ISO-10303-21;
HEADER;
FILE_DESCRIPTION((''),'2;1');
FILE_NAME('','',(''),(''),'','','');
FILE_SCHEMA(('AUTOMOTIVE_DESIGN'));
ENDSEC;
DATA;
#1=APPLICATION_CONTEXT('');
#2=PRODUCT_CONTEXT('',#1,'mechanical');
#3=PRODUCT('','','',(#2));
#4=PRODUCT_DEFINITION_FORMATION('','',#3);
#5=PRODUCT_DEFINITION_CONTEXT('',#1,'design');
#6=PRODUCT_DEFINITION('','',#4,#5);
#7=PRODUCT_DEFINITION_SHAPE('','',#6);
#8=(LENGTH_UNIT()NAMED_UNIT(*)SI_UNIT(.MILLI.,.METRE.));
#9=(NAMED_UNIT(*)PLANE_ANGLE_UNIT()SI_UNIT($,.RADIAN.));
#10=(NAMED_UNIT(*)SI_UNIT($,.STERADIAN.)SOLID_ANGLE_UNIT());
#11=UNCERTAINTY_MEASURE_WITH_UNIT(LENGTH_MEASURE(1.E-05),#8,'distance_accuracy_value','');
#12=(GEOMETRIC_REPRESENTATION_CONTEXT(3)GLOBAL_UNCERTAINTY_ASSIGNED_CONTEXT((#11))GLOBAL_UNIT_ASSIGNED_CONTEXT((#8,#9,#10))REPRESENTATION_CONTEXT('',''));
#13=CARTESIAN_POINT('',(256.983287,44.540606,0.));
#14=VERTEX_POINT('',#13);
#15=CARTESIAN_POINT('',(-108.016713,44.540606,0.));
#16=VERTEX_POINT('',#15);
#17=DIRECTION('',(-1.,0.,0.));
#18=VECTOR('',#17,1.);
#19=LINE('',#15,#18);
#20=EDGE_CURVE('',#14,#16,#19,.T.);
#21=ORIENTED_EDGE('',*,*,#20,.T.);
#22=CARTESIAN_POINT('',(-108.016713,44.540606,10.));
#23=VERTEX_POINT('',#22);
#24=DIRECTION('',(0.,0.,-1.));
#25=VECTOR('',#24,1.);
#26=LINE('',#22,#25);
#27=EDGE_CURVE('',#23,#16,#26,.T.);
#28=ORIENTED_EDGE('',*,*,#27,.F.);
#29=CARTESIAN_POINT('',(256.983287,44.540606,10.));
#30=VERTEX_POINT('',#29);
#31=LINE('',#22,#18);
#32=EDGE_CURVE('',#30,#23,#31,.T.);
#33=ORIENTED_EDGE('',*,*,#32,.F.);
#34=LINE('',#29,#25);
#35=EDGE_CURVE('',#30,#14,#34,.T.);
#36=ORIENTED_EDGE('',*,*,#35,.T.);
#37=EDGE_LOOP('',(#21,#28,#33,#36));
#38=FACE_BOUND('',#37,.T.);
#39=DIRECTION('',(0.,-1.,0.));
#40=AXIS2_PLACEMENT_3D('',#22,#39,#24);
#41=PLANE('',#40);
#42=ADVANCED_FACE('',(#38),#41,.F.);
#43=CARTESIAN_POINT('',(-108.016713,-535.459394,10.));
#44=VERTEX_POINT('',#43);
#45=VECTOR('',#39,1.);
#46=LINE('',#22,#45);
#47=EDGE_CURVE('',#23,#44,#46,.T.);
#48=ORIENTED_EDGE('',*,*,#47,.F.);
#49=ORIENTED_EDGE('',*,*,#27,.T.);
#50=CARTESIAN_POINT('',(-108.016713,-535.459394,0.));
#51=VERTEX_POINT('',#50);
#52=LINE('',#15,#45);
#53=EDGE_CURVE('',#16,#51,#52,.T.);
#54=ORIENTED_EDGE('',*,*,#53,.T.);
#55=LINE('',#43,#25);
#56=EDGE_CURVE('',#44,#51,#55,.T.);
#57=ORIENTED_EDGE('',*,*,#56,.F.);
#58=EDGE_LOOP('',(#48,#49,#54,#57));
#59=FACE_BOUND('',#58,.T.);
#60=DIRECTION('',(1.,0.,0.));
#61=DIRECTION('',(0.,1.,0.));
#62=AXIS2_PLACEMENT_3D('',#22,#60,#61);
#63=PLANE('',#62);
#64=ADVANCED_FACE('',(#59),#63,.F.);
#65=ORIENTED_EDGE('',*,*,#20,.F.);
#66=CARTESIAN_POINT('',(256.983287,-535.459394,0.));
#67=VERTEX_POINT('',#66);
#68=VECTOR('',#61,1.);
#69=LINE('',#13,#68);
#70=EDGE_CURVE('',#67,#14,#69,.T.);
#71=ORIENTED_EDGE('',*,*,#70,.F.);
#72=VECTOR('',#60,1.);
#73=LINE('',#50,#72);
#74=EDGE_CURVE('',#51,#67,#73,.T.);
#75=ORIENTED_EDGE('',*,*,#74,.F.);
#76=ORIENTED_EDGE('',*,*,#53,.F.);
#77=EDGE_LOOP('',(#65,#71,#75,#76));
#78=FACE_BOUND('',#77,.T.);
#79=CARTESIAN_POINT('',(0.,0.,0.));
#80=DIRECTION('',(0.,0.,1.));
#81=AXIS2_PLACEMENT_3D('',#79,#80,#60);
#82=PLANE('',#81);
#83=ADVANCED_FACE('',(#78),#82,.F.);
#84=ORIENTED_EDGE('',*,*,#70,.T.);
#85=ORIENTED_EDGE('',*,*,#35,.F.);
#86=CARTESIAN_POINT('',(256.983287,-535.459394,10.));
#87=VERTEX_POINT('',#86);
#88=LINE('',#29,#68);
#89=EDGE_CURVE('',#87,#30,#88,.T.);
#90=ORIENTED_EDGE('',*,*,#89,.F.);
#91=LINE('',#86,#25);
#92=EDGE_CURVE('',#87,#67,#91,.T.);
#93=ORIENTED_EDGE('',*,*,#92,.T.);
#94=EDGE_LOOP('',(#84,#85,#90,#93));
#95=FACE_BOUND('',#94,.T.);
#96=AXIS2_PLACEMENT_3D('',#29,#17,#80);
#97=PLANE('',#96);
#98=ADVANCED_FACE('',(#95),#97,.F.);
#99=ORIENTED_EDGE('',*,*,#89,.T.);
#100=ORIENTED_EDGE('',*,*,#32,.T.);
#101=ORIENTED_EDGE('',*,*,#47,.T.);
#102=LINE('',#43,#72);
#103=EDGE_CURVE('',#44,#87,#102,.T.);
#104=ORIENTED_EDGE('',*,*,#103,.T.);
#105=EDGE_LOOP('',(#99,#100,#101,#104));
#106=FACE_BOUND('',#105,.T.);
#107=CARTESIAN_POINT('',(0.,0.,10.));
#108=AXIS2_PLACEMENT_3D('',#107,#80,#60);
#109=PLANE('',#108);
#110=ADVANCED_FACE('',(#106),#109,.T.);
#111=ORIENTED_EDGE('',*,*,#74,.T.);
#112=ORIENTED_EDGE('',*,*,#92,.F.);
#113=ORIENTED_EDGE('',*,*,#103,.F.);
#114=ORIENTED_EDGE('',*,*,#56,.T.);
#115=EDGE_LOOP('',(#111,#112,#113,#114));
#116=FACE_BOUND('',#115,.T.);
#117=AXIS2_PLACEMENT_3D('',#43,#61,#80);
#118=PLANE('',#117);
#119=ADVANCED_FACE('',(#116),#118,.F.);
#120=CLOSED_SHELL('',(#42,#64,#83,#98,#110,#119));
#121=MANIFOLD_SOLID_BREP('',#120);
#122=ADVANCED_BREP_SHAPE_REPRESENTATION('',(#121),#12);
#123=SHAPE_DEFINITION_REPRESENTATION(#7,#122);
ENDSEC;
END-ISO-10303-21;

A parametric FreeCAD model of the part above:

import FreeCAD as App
import Part
import Sketcher

doc = App.newDocument("Part")
body = doc.addObject("PartDesign::Body", "Body")

# Sketch on XY plane
sketch1 = body.newObject("Sketcher::SketchObject", "Sketch")
sketch1.AttachmentSupport = (doc.getObject("XY_Plane"), [""])
sketch1.MapMode = "FlatFace"
sketch1.addGeometry(Part.LineSegment(App.Vector(-108, 45, 0), App.Vector(-108, -535, 0)), False)
sketch1.addGeometry(Part.LineSegment(App.Vector(-108, -535, 0), App.Vector(257, -535, 0)), False)
sketch1.addGeometry(Part.LineSegment(App.Vector(257, -535, 0), App.Vector(257, 45, 0)), False)
sketch1.addGeometry(Part.LineSegment(App.Vector(257, 45, 0), App.Vector(-108, 45, 0)), False)
sketch1.addConstraint(Sketcher.Constraint("Coincident", 0, 2, 1, 1))
sketch1.addConstraint(Sketcher.Constraint("Coincident", 1, 2, 2, 1))
sketch1.addConstraint(Sketcher.Constraint("Coincident", 2, 2, 3, 1))
sketch1.addConstraint(Sketcher.Constraint("Coincident", 3, 2, 0, 1))
sketch1.addConstraint(Sketcher.Constraint("Vertical", 0))
sketch1.addConstraint(Sketcher.Constraint("Horizontal", 1))
sketch1.addConstraint(Sketcher.Constraint("Vertical", 2))
sketch1.addConstraint(Sketcher.Constraint("Horizontal", 3))
sketch1.addConstraint(Sketcher.Constraint("DistanceX", 1, 1, 1, 2, 365.0))
sketch1.addConstraint(Sketcher.Constraint("DistanceY", 0, 2, 0, 1, 580.0))
sketch1.addConstraint(Sketcher.Constraint("DistanceX", 0, 2, -1, 1, 108.016713))
sketch1.addConstraint(Sketcher.Constraint("DistanceY", 0, 2, -1, 1, 535.459394))
pad1 = body.newObject("PartDesign::Pad", "Pad")
pad1.Profile = sketch1
pad1.Length = 10

doc.recompute()
